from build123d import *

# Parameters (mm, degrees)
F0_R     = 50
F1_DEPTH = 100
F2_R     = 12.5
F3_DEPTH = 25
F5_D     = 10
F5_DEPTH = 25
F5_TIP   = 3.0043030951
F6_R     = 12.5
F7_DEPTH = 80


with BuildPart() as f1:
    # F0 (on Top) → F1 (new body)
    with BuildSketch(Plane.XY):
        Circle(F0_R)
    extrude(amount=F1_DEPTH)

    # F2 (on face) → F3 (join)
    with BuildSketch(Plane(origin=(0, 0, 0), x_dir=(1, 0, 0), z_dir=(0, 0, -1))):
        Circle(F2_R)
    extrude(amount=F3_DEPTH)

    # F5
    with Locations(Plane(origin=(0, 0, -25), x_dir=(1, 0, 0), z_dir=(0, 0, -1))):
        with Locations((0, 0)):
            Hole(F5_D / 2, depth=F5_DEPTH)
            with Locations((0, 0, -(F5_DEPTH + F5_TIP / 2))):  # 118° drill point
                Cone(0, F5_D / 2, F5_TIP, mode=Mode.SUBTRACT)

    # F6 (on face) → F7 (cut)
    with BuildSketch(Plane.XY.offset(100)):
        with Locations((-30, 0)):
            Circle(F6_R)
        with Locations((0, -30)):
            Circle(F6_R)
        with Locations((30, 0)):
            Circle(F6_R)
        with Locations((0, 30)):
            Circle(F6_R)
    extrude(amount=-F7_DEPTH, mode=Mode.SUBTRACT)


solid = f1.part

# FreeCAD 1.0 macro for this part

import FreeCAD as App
import Part
import Sketcher

doc = App.newDocument("Part")
body = doc.addObject("PartDesign::Body", "Body")

# Sketch on XY plane
sketch1 = body.newObject("Sketcher::SketchObject", "Sketch")
sketch1.AttachmentSupport = (doc.getObject("XY_Plane"), [""])
sketch1.MapMode = "FlatFace"
sketch1.addGeometry(Part.Circle(App.Vector(0, 0, 0), App.Vector(0, 0, 1), 50), False)
sketch1.addConstraint([
    Sketcher.Constraint("Coincident", 0, 3, -1, 1),
    Sketcher.Constraint("Diameter", 0, 100.0),
])
pad1 = body.newObject("PartDesign::Pad", "Pad")
pad1.Profile = sketch1
pad1.Length = 100

# Sketch on XY plane
sketch2 = body.newObject("Sketcher::SketchObject", "Sketch001")
sketch2.AttachmentSupport = (doc.getObject("XY_Plane"), [""])
sketch2.MapMode = "FlatFace"
sketch2.addGeometry(Part.Circle(App.Vector(0, 0, 0), App.Vector(0, 0, 1), 12.5), False)
sketch2.addConstraint([
    Sketcher.Constraint("Coincident", 0, 3, -1, 1),
    Sketcher.Constraint("Diameter", 0, 25.0),
])
pad2 = body.newObject("PartDesign::Pad", "Pad001")
pad2.Profile = sketch2
pad2.Length = 25
pad2.Reversed = True

# Sketch on XY plane
sketch3 = body.newObject("Sketcher::SketchObject", "Sketch002")
sketch3.AttachmentSupport = (doc.getObject("XY_Plane"), [""])
sketch3.MapMode = "FlatFace"
sketch3.AttachmentOffset = App.Placement(App.Vector(0, 0, -25), App.Rotation())
sketch3.addGeometry(Part.Circle(App.Vector(0, 0, 0), App.Vector(0, 0, 1), 5), False)
sketch3.addConstraint([
    Sketcher.Constraint("Coincident", 0, 3, -1, 1),
    Sketcher.Constraint("Diameter", 0, 10.0),
])
doc.recompute()
hole = body.newObject("PartDesign::Hole", "Hole")
hole.Profile = sketch3
hole.ThreadType = "None"
hole.Diameter = 10
hole.DepthType = "Dimension"
hole.Depth = 25
hole.DrillPoint = "Angled"
hole.DrillPointAngle = 118
hole.Reversed = True

# Sketch on XY plane
sketch4 = body.newObject("Sketcher::SketchObject", "Sketch003")
sketch4.AttachmentSupport = (doc.getObject("XY_Plane"), [""])
sketch4.MapMode = "FlatFace"
sketch4.AttachmentOffset = App.Placement(App.Vector(0, 0, 100), App.Rotation())
sketch4.addGeometry([
    Part.Circle(App.Vector(-30, 0, 0), App.Vector(0, 0, 1), 12.5),
    Part.Circle(App.Vector(0, -30, 0), App.Vector(0, 0, 1), 12.5),
    Part.Circle(App.Vector(30, 0, 0), App.Vector(0, 0, 1), 12.5),
    Part.Circle(App.Vector(0, 30, 0), App.Vector(0, 0, 1), 12.5),
], False)
sketch4.addConstraint([
    Sketcher.Constraint("Equal", 0, 1),
    Sketcher.Constraint("Equal", 1, 2),
    Sketcher.Constraint("Equal", 2, 3),
    Sketcher.Constraint("Symmetric", 0, 3, 2, 3, -1, 1),
    Sketcher.Constraint("Symmetric", 1, 3, 3, 3, -1, 1),
    Sketcher.Constraint("PointOnObject", 0, 3, -1),
    Sketcher.Constraint("PointOnObject", 1, 3, -2),
    Sketcher.Constraint("Diameter", 0, 25.0),
    Sketcher.Constraint("DistanceX", 0, 3, -1, 1, 30.0),
    Sketcher.Constraint("DistanceY", 1, 3, -1, 1, 30.0),
])
pocket1 = body.newObject("PartDesign::Pocket", "Pocket")
pocket1.Profile = sketch4
pocket1.Length = 80

doc.recompute()
